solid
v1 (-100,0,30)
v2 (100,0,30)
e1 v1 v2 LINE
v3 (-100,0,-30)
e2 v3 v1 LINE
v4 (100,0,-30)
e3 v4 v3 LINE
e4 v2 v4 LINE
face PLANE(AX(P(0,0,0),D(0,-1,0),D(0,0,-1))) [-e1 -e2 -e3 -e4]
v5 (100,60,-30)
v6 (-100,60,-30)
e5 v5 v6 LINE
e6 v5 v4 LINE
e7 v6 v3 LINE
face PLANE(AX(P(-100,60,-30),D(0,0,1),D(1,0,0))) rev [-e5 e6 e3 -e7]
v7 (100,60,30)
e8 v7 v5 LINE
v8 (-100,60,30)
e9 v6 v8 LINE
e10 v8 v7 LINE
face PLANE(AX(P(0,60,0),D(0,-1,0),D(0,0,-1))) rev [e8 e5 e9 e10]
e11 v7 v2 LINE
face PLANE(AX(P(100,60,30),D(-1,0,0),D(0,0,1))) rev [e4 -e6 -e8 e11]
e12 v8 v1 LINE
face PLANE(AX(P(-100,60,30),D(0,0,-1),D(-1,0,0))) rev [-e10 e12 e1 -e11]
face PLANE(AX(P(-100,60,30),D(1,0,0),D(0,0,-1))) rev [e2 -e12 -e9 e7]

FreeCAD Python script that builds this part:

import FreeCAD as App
import Part
import Sketcher

doc = App.newDocument("Part")
body = doc.addObject("PartDesign::Body", "Body")

# Sketch on XZ plane
sketch1 = body.newObject("Sketcher::SketchObject", "Sketch")
sketch1.AttachmentSupport = (doc.getObject("XZ_Plane"), [""])
sketch1.MapMode = "FlatFace"
sketch1.addGeometry([
    Part.LineSegment(App.Vector(-100, -30, 0), App.Vector(-100, 30, 0)),
    Part.LineSegment(App.Vector(-100, 30, 0), App.Vector(100, 30, 0)),
    Part.LineSegment(App.Vector(100, 30, 0), App.Vector(100, -30, 0)),
    Part.LineSegment(App.Vector(100, -30, 0), App.Vector(-100, -30, 0)),
], False)
sketch1.addConstraint([
    Sketcher.Constraint("Coincident", 0, 2, 1, 1),
    Sketcher.Constraint("Coincident", 1, 2, 2, 1),
    Sketcher.Constraint("Coincident", 2, 2, 3, 1),
    Sketcher.Constraint("Coincident", 3, 2, 0, 1),
    Sketcher.Constraint("Vertical", 0),
    Sketcher.Constraint("Horizontal", 1),
    Sketcher.Constraint("Vertical", 2),
    Sketcher.Constraint("Horizontal", 3),
    Sketcher.Constraint("Symmetric", 0, 2, 2, 2, -1, 1),
    Sketcher.Constraint("DistanceX", 1, 1, 1, 2, 200.0),
    Sketcher.Constraint("DistanceY", 0, 1, 0, 2, 60.0),
])
pad1 = body.newObject("PartDesign::Pad", "Pad")
pad1.Profile = sketch1
pad1.Length = 60
pad1.Reversed = True

doc.recompute()
